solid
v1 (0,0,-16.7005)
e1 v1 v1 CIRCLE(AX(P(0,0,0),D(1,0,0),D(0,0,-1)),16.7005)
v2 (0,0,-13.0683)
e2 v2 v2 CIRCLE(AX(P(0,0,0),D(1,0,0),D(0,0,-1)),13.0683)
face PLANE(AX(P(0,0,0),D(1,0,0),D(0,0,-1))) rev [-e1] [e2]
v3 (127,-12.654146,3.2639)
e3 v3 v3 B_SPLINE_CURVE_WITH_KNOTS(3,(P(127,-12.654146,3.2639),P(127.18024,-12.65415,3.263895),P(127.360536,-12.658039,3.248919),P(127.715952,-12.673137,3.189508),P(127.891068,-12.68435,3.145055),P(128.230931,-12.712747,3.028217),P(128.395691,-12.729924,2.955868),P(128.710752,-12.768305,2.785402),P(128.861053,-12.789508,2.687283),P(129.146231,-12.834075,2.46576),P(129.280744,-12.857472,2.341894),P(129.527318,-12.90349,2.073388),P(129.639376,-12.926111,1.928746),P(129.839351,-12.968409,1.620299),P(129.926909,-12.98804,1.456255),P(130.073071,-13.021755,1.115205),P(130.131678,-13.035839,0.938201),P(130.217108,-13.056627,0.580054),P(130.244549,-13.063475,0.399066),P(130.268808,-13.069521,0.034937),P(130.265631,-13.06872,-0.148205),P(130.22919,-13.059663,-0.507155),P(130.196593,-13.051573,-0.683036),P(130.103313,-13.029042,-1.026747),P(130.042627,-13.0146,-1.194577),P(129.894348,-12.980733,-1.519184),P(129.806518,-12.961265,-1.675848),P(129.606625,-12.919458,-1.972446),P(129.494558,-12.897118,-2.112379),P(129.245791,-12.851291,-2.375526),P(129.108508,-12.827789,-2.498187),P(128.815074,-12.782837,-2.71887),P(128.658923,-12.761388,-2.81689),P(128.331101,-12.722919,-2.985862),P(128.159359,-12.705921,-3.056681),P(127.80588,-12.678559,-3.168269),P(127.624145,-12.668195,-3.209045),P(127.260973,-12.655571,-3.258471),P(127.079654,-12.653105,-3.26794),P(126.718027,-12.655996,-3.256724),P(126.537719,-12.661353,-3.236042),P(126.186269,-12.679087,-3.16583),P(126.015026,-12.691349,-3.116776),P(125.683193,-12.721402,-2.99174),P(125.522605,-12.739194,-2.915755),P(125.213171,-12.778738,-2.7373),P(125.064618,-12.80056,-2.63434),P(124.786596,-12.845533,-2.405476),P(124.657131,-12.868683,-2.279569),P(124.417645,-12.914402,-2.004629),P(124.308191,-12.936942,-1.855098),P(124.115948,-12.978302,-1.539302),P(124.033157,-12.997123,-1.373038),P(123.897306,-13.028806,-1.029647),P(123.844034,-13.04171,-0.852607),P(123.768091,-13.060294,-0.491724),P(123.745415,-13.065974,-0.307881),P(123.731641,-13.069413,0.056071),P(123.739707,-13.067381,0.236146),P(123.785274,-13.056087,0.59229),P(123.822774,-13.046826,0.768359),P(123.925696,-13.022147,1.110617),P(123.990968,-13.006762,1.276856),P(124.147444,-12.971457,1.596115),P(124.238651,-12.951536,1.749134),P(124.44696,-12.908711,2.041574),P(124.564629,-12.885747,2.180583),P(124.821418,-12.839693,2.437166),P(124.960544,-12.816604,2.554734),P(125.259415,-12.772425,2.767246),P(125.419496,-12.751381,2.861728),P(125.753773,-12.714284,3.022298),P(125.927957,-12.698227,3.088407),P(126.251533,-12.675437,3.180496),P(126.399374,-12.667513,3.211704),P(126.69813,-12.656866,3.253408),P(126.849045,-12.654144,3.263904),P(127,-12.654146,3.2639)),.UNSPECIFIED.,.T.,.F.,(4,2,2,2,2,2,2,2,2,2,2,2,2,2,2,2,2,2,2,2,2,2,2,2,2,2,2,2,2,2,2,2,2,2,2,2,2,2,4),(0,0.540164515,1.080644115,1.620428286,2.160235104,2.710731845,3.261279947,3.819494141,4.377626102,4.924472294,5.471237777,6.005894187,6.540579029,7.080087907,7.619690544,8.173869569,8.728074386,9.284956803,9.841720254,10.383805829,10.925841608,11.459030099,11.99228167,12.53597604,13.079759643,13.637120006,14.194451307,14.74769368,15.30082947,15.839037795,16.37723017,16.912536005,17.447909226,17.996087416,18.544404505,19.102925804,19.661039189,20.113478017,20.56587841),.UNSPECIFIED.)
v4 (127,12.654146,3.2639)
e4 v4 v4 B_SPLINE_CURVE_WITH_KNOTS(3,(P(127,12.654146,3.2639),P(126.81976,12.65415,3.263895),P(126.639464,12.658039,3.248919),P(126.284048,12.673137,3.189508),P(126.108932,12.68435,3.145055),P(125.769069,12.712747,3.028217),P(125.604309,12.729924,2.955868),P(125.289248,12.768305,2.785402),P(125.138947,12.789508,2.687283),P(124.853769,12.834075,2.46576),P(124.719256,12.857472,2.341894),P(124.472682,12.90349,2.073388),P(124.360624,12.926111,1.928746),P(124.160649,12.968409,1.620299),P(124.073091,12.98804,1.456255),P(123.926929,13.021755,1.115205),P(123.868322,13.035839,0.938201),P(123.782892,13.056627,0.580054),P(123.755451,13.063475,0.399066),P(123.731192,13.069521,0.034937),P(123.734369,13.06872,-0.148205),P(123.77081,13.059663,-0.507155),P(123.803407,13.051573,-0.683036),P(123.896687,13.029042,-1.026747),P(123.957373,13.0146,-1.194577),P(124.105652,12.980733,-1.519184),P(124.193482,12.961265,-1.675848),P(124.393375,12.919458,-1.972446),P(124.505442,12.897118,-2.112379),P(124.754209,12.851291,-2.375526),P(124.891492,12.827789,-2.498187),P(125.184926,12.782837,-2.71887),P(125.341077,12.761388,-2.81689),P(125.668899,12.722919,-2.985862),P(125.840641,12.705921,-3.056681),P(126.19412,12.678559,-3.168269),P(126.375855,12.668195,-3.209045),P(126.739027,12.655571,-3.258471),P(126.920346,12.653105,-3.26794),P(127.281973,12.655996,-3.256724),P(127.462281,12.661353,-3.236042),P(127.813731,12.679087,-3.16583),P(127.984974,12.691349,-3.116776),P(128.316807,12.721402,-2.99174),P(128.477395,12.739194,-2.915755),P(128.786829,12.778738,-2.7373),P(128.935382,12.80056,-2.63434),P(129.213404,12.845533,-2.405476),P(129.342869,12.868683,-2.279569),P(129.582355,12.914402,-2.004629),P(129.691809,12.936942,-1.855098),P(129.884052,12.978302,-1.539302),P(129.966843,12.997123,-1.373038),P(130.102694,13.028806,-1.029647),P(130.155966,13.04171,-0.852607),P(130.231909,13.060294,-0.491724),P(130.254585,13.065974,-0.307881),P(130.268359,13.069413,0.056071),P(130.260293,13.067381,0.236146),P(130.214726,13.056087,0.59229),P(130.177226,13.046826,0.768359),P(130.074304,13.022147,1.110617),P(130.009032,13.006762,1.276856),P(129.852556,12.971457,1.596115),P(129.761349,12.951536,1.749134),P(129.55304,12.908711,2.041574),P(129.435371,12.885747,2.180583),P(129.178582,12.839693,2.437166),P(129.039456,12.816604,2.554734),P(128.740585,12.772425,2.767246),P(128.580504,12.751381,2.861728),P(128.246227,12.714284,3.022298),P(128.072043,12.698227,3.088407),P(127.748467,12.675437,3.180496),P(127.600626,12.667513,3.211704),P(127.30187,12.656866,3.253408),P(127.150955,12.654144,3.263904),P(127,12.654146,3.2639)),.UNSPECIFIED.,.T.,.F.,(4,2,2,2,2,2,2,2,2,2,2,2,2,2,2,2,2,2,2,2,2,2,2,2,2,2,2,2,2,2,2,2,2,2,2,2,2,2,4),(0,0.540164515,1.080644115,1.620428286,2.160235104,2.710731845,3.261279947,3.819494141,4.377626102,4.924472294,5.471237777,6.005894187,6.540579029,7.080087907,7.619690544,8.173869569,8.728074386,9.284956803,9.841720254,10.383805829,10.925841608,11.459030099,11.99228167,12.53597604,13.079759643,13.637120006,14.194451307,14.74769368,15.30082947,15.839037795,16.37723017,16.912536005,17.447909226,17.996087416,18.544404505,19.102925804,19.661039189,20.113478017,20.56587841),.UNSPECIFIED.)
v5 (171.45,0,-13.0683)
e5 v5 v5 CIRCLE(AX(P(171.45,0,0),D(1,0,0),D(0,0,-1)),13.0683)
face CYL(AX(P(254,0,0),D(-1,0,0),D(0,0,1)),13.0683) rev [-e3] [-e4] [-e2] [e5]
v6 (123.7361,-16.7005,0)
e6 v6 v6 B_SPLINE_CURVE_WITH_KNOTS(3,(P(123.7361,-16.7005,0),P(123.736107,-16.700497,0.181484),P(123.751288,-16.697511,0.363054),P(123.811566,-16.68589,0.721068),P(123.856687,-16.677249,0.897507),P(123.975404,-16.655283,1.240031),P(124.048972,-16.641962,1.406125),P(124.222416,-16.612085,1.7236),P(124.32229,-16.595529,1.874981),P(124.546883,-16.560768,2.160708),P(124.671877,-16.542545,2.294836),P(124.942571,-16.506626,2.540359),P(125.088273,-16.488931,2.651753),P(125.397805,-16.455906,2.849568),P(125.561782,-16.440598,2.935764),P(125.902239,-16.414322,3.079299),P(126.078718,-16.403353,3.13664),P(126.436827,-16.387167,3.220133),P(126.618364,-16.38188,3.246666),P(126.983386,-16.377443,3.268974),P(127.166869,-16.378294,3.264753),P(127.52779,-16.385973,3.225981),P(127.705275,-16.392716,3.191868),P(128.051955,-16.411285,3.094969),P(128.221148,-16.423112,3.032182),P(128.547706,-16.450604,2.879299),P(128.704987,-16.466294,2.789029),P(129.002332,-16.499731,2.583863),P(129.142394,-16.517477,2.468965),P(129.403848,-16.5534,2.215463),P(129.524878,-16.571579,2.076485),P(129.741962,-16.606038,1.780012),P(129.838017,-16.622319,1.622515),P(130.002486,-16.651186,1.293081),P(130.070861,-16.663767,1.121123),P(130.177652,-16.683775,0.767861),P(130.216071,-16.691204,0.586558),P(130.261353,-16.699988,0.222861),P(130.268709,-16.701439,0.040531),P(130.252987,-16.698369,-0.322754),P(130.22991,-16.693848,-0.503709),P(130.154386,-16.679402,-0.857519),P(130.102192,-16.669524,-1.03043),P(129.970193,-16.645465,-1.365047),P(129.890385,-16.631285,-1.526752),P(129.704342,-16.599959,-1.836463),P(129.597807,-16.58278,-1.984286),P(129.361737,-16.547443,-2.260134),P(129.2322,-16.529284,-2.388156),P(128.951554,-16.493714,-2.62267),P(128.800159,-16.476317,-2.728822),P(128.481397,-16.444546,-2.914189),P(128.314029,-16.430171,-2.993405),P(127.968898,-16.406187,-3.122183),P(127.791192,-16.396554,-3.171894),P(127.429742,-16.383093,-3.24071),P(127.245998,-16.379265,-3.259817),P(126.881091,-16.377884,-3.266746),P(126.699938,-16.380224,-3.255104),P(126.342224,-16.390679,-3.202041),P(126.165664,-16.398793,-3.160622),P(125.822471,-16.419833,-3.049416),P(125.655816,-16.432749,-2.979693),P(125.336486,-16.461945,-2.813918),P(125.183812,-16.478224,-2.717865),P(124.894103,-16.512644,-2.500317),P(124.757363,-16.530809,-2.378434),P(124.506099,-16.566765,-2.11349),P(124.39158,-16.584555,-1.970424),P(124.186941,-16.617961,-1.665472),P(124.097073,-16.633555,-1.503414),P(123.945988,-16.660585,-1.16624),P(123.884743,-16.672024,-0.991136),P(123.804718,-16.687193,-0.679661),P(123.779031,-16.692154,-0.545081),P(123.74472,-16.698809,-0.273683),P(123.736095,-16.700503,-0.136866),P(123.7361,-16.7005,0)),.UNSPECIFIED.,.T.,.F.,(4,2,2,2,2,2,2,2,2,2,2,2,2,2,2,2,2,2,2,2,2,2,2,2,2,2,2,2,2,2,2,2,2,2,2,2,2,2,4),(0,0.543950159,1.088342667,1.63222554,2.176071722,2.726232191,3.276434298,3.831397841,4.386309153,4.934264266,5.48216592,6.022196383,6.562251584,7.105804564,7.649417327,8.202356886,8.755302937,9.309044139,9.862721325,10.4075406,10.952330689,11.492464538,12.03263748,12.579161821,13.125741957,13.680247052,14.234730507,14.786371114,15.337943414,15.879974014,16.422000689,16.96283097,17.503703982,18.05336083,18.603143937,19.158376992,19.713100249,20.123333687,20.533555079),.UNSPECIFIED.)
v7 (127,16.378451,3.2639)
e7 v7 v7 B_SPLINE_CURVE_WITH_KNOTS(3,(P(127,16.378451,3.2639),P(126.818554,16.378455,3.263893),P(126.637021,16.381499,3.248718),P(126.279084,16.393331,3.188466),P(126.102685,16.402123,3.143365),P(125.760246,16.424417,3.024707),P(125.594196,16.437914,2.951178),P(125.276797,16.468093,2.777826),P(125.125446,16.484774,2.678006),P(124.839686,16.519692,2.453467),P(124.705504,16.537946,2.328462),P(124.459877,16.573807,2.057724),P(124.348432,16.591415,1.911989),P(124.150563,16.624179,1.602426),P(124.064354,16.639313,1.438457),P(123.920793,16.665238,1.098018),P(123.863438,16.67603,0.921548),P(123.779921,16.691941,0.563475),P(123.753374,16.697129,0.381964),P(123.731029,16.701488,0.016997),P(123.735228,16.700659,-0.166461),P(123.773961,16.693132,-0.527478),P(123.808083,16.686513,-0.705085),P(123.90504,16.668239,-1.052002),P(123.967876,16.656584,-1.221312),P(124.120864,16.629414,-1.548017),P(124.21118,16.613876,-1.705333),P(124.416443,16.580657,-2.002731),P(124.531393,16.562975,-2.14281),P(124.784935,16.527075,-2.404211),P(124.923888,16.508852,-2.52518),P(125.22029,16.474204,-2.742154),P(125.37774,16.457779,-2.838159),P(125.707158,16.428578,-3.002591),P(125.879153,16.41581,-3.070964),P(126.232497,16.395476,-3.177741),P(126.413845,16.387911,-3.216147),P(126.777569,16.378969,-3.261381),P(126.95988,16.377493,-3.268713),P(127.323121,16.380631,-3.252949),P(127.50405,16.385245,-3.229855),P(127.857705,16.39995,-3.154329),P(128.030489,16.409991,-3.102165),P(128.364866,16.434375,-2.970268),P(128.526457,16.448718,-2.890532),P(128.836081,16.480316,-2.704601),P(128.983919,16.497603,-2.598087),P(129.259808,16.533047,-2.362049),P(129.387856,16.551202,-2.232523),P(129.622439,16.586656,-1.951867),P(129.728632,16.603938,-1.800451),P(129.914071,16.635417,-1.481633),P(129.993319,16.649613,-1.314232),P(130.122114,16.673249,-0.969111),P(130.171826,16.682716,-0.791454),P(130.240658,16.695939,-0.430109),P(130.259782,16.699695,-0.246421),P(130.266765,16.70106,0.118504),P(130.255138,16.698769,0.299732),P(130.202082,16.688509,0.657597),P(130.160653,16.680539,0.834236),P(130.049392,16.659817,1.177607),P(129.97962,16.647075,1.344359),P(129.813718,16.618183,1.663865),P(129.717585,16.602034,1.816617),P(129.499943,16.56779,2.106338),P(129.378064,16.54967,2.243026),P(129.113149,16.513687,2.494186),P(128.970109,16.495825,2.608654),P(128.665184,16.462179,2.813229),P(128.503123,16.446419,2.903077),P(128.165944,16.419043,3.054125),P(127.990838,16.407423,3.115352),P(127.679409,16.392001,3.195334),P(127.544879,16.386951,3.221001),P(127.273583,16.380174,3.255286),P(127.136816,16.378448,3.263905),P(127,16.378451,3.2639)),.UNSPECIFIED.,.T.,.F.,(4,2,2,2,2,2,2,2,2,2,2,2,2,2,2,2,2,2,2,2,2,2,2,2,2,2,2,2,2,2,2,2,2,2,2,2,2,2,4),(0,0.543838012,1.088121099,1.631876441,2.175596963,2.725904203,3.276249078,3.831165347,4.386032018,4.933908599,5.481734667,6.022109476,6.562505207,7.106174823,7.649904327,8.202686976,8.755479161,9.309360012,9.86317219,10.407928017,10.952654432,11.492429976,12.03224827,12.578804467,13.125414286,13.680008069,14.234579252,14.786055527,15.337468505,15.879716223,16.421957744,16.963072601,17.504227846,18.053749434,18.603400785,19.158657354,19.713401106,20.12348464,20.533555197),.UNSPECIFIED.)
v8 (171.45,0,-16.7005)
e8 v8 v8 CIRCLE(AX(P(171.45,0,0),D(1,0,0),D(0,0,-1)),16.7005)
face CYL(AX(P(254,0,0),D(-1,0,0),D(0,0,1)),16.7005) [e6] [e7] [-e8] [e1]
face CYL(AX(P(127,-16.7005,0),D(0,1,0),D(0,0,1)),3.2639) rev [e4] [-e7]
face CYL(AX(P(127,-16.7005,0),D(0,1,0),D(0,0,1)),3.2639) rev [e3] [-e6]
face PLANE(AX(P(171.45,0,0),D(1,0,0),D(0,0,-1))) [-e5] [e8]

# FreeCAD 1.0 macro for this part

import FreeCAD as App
import Part
import Sketcher
Q = App.Units.Quantity

doc = App.newDocument("Part")
body = doc.addObject("PartDesign::Body", "Body")

# Sketch on YZ plane
sketch1 = body.newObject("Sketcher::SketchObject", "Sketch")
sketch1.AttachmentSupport = (doc.getObject("YZ_Plane"), [""])
sketch1.MapMode = "FlatFace"
sketch1.addGeometry(Part.Circle(App.Vector(0, 0, 0), App.Vector(0, 0, 1), 17), False)
sketch1.addGeometry(Part.Circle(App.Vector(0, 0, 0), App.Vector(0, 0, 1), 13), False)
sketch1.addConstraint(Sketcher.Constraint("Coincident", 0, 3, -1, 1))
sketch1.addConstraint(Sketcher.Constraint("Coincident", 1, 3, -1, 1))
sketch1.addConstraint(Sketcher.Constraint("Diameter", 0, Q("1.315 in")))
sketch1.addConstraint(Sketcher.Constraint("Diameter", 1, Q("1.029 in")))
pad1 = body.newObject("PartDesign::Pad", "Pad")
pad1.Profile = sketch1
pad1.Length = Q("10 in")

# Sketch on XZ plane
sketch2 = body.newObject("Sketcher::SketchObject", "Sketch001")
sketch2.AttachmentSupport = (doc.getObject("XZ_Plane"), [""])
sketch2.MapMode = "FlatFace"
sketch2.addGeometry(Part.Circle(App.Vector(127, 0, 0), App.Vector(0, 0, 1), 3.3), False)
sketch2.addConstraint(Sketcher.Constraint("PointOnObject", 0, 3, -1))
sketch2.addConstraint(Sketcher.Constraint("Diameter", 0, Q("0.257 in")))
sketch2.addConstraint(Sketcher.Constraint("DistanceX", -1, 1, 0, 3, Q("5 in")))
pocket1 = body.newObject("PartDesign::Pocket", "Pocket")
pocket1.Profile = sketch2
pocket1.Type = "ThroughAll"
pocket1.Midplane = True

# Sketch on YZ plane
sketch3 = body.newObject("Sketcher::SketchObject", "Sketch002")
sketch3.AttachmentSupport = (doc.getObject("YZ_Plane"), [""])
sketch3.MapMode = "FlatFace"
sketch3.AttachmentOffset = App.Placement(App.Vector(0, 0, 6.75 * 25.4), App.Rotation())
sketch3.addGeometry(Part.Circle(App.Vector(0, 0, 0), App.Vector(0, 0, 1), 17), False)
sketch3.addConstraint(Sketcher.Constraint("Coincident", 0, 3, -1, 1))
sketch3.addConstraint(Sketcher.Constraint("Diameter", 0, Q("1.315 in")))
pocket2 = body.newObject("PartDesign::Pocket", "Pocket001")
pocket2.Profile = sketch3
pocket2.Length = Q("3.25 in")
pocket2.Reversed = True

doc.recompute()
